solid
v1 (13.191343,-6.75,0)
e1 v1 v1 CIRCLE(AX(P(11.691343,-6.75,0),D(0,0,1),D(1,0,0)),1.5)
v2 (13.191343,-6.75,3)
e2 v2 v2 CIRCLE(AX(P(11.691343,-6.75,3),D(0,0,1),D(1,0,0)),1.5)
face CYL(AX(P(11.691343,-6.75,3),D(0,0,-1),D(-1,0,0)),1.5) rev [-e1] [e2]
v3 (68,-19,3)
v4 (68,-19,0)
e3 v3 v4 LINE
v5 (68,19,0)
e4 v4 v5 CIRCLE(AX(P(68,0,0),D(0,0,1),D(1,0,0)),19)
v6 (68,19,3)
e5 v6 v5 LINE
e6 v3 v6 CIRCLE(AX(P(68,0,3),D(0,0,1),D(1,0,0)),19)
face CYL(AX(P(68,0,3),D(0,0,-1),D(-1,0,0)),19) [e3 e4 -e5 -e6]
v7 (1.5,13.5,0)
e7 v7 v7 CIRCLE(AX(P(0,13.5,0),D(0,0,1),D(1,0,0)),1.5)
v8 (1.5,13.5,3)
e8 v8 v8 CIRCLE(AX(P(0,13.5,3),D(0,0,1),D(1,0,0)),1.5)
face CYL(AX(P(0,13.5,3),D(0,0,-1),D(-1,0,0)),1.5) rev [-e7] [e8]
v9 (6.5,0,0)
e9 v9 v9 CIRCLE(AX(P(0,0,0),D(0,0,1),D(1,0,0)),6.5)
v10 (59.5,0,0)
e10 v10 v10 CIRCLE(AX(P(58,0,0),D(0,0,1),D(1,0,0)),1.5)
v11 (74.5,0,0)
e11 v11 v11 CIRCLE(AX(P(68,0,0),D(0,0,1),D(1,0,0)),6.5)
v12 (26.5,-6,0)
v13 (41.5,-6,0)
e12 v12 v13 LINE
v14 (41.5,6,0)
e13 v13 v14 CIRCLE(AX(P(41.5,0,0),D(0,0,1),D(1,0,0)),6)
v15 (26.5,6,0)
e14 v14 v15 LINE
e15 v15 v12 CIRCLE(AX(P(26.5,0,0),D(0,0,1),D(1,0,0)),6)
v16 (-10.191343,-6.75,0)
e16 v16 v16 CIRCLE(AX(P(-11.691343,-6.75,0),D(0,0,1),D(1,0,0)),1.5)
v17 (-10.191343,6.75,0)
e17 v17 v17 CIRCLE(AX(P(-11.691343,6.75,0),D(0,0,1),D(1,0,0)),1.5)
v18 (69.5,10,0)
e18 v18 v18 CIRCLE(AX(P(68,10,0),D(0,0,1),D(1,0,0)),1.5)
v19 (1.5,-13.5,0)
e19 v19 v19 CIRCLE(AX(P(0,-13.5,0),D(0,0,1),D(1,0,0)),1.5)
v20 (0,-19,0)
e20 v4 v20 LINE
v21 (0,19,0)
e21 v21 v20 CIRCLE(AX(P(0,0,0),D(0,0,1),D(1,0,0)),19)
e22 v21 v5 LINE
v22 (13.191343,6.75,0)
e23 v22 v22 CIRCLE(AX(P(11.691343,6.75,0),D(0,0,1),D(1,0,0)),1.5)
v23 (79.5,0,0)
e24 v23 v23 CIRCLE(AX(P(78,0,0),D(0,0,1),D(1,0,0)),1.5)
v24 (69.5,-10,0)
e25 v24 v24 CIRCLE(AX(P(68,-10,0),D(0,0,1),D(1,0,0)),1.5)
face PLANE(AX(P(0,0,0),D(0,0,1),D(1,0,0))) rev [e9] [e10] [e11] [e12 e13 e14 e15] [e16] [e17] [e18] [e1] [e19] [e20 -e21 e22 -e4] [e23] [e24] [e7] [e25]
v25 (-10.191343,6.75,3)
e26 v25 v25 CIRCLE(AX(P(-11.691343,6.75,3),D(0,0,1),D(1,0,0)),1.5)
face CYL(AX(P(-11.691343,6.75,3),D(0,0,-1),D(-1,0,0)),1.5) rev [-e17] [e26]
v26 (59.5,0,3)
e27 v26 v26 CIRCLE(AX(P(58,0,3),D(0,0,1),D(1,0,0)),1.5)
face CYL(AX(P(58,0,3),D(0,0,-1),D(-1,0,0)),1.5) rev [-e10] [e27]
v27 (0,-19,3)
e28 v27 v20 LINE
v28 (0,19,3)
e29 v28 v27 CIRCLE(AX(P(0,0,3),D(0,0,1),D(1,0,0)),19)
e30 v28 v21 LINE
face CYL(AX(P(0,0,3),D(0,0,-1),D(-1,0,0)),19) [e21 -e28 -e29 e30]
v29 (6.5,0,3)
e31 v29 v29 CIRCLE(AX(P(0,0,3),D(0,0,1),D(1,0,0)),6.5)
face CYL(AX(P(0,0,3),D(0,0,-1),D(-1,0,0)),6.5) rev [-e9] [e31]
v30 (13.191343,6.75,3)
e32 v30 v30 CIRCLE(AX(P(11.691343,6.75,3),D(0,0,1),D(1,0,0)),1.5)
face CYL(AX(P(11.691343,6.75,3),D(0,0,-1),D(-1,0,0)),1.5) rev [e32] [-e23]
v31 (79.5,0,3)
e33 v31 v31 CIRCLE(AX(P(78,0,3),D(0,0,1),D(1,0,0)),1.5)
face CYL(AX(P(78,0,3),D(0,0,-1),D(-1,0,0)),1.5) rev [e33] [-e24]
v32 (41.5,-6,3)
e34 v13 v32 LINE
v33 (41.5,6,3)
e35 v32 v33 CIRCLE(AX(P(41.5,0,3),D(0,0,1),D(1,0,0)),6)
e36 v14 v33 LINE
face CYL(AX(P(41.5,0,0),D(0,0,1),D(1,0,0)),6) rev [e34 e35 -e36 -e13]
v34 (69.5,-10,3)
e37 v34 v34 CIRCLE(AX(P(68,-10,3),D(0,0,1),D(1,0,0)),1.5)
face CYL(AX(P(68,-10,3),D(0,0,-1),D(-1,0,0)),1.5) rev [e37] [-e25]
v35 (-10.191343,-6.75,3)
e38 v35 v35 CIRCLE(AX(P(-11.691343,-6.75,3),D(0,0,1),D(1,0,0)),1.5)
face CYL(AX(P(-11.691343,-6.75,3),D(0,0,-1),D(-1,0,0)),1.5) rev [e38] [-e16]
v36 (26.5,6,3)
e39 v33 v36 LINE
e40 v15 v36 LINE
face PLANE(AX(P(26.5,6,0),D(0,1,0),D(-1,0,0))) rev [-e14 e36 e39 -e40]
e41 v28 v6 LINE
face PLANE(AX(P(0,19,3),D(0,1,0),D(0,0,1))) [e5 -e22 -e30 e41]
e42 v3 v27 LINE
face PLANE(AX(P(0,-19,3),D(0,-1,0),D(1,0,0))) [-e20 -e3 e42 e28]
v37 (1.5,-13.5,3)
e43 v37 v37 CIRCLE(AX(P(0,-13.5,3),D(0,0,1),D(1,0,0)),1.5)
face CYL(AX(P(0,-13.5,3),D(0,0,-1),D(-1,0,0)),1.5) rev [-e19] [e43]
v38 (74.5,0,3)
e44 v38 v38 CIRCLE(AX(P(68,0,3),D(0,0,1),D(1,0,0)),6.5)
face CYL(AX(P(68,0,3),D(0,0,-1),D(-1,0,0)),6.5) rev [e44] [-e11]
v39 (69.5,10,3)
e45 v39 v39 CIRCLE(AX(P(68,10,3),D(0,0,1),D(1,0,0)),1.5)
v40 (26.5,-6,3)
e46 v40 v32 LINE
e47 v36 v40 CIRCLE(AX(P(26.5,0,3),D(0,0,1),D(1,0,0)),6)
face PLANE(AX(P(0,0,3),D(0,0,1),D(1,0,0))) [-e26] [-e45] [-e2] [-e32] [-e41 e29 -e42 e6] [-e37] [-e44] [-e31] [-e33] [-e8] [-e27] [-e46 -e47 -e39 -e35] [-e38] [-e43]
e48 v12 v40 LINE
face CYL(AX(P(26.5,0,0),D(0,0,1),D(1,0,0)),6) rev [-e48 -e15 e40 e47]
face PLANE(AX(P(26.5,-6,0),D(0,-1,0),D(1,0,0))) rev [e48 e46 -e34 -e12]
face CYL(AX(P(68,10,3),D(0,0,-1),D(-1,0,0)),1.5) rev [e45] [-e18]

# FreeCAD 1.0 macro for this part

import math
import FreeCAD as App
import Part
import Sketcher
from FreeCAD import Vector

doc = App.newDocument("Part")
body = doc.addObject("PartDesign::Body", "Body")

sketch1 = body.newObject("Sketcher::SketchObject", "Sketch")
sketch1.AttachmentSupport = (doc.getObject("XY_Plane"), [""])
sketch1.MapMode = "FlatFace"
sketch1.addGeometry(Part.ArcOfCircle(Part.Circle(Vector(0, 0, 0), Vector(0, 0, 1), 19), math.radians(90), math.radians(270)), False)
sketch1.addGeometry(Part.LineSegment(Vector(0, -19, 0), Vector(68, -19, 0)), False)
sketch1.addGeometry(Part.ArcOfCircle(Part.Circle(Vector(68, 0, 0), Vector(0, 0, 1), 19), math.radians(-90), math.radians(90)), False)
sketch1.addGeometry(Part.LineSegment(Vector(68, 19, 0), Vector(0, 19, 0)), False)
sketch1.addGeometry(Part.Circle(Vector(-11.7, -6.8, 0), Vector(0, 0, 1), 1.5), False)
sketch1.addGeometry(Part.Circle(Vector(0, -13.5, 0), Vector(0, 0, 1), 1.5), False)
sketch1.addGeometry(Part.Circle(Vector(11.7, -6.8, 0), Vector(0, 0, 1), 1.5), False)
sketch1.addGeometry(Part.Circle(Vector(-11.7, 6.8, 0), Vector(0, 0, 1), 1.5), False)
sketch1.addGeometry(Part.Circle(Vector(0, 0, 0), Vector(0, 0, 1), 6.5), False)
sketch1.addGeometry(Part.Circle(Vector(11.7, 6.8, 0), Vector(0, 0, 1), 1.5), False)
sketch1.addGeometry(Part.Circle(Vector(0, 13.5, 0), Vector(0, 0, 1), 1.5), False)
sketch1.addGeometry(Part.Circle(Vector(68, 10, 0), Vector(0, 0, 1), 1.5), False)
sketch1.addGeometry(Part.Circle(Vector(68, -10, 0), Vector(0, 0, 1), 1.5), False)
sketch1.addGeometry(Part.Circle(Vector(58, 0, 0), Vector(0, 0, 1), 1.5), False)
sketch1.addGeometry(Part.Circle(Vector(68, 0, 0), Vector(0, 0, 1), 6.5), False)
sketch1.addGeometry(Part.Circle(Vector(78, 0, 0), Vector(0, 0, 1), 1.5), False)
sketch1.addConstraint(Sketcher.Constraint("Tangent", 0, 2, 1, 1))
sketch1.addConstraint(Sketcher.Constraint("Tangent", 1, 2, 2, 1))
sketch1.addConstraint(Sketcher.Constraint("Tangent", 2, 2, 3, 1))
sketch1.addConstraint(Sketcher.Constraint("Tangent", 3, 2, 0, 1))
sketch1.addConstraint(Sketcher.Constraint("Horizontal", 1))
sketch1.addConstraint(Sketcher.Constraint("Horizontal", 3))
sketch1.addConstraint(Sketcher.Constraint("Coincident", 0, 3, -1, 1))
sketch1.addConstraint(Sketcher.Constraint("Coincident", 8, 3, -1, 1))
sketch1.addConstraint(Sketcher.Constraint("Coincident", 14, 3, 2, 3))
sketch1.addConstraint(Sketcher.Constraint("Equal", 4, 5))
sketch1.addConstraint(Sketcher.Constraint("Equal", 5, 6))
sketch1.addConstraint(Sketcher.Constraint("Equal", 6, 7))
sketch1.addConstraint(Sketcher.Constraint("Equal", 7, 9))
sketch1.addConstraint(Sketcher.Constraint("Equal", 9, 10))
sketch1.addConstraint(Sketcher.Constraint("Equal", 10, 11))
sketch1.addConstraint(Sketcher.Constraint("Equal", 11, 12))
sketch1.addConstraint(Sketcher.Constraint("Equal", 12, 13))
sketch1.addConstraint(Sketcher.Constraint("Equal", 8, 14))
sketch1.addConstraint(Sketcher.Constraint("Equal", 13, 15))
sketch1.addConstraint(Sketcher.Constraint("Symmetric", 6, 3, 7, 3, -1, 1))
sketch1.addConstraint(Sketcher.Constraint("Symmetric", 4, 3, 9, 3, -1, 1))
sketch1.addConstraint(Sketcher.Constraint("Symmetric", 5, 3, 10, 3, -1, 1))
sketch1.addConstraint(Sketcher.Constraint("Symmetric", 4, 3, 6, 3, -2))
sketch1.addConstraint(Sketcher.Constraint("Symmetric", 11, 3, 12, 3, -1))
sketch1.addConstraint(Sketcher.Constraint("PointOnObject", 5, 3, -2))
sketch1.addConstraint(Sketcher.Constraint("PointOnObject", 13, 3, -1))
sketch1.addConstraint(Sketcher.Constraint("PointOnObject", 15, 3, -1))
sketch1.addConstraint(Sketcher.Constraint("Vertical", 2, 3, 11, 3))
sketch1.addConstraint(Sketcher.Constraint("Diameter", 4, 3.0))
sketch1.addConstraint(Sketcher.Constraint("Diameter", 8, 13.0))
sketch1.addConstraint(Sketcher.Constraint("Radius", 0, 19.0))
sketch1.addConstraint(Sketcher.Constraint("DistanceX", 1, 1, 1, 2, 68.0))
sketch1.addConstraint(Sketcher.Constraint("DistanceY", -1, 1, 11, 3, 10.0))
sketch1.addConstraint(Sketcher.Constraint("DistanceX", -1, 1, 13, 3, 58.0))
sketch1.addConstraint(Sketcher.Constraint("DistanceX", -1, 1, 15, 3, 78.0))
sketch1.addConstraint(Sketcher.Constraint("DistanceY", 5, 3, -1, 1, 13.5))
sketch1.addConstraint(Sketcher.Constraint("DistanceY", 4, 3, 7, 3, 13.5))
sketch1.addConstraint(Sketcher.Constraint("DistanceX", 4, 3, -1, 1, 11.691343))
pad1 = body.newObject("PartDesign::Pad", "Pad")
pad1.Profile = sketch1
pad1.Length = 3

sketch2 = body.newObject("Sketcher::SketchObject", "Sketch001")
sketch2.AttachmentSupport = (doc.getObject("XY_Plane"), [""])
sketch2.MapMode = "FlatFace"
sketch2.AttachmentOffset = App.Placement(Vector(0, 0, 3), App.Rotation())
sketch2.addGeometry(Part.Circle(Vector(68, 0, 0), Vector(0, 0, 1), 6), False)
sketch2.addGeometry(Part.LineSegment(Vector(42, 6, 0), Vector(26, 6, 0)), False)
sketch2.addGeometry(Part.ArcOfCircle(Part.Circle(Vector(26, 0, 0), Vector(0, 0, 1), 6), math.radians(90), math.radians(270)), False)
sketch2.addGeometry(Part.LineSegment(Vector(26, -6, 0), Vector(42, -6, 0)), False)
sketch2.addGeometry(Part.ArcOfCircle(Part.Circle(Vector(42, 0, 0), Vector(0, 0, 1), 6), math.radians(-90), math.radians(90)), False)
sketch2.addConstraint(Sketcher.Constraint("Tangent", 1, 2, 2, 1))
sketch2.addConstraint(Sketcher.Constraint("Tangent", 2, 2, 3, 1))
sketch2.addConstraint(Sketcher.Constraint("Tangent", 3, 2, 4, 1))
sketch2.addConstraint(Sketcher.Constraint("Tangent", 4, 2, 1, 1))
sketch2.addConstraint(Sketcher.Constraint("Horizontal", 1))
sketch2.addConstraint(Sketcher.Constraint("Horizontal", 3))
sketch2.addConstraint(Sketcher.Constraint("PointOnObject", 0, 3, -1))
sketch2.addConstraint(Sketcher.Constraint("PointOnObject", 2, 3, -1))
sketch2.addConstraint(Sketcher.Constraint("Diameter", 0, 13.0))
sketch2.addConstraint(Sketcher.Constraint("Radius", 2, 6.0))
sketch2.addConstraint(Sketcher.Constraint("DistanceX", 1, 2, 1, 1, 15.0))
sketch2.addConstraint(Sketcher.Constraint("DistanceX", -1, 1, 0, 3, 68.0))
sketch2.addConstraint(Sketcher.Constraint("DistanceX", -1, 1, 2, 3, 26.5))
pocket1 = body.newObject("PartDesign::Pocket", "Pocket")
pocket1.Profile = sketch2
pocket1.Type = "ThroughAll"

doc.recompute()
